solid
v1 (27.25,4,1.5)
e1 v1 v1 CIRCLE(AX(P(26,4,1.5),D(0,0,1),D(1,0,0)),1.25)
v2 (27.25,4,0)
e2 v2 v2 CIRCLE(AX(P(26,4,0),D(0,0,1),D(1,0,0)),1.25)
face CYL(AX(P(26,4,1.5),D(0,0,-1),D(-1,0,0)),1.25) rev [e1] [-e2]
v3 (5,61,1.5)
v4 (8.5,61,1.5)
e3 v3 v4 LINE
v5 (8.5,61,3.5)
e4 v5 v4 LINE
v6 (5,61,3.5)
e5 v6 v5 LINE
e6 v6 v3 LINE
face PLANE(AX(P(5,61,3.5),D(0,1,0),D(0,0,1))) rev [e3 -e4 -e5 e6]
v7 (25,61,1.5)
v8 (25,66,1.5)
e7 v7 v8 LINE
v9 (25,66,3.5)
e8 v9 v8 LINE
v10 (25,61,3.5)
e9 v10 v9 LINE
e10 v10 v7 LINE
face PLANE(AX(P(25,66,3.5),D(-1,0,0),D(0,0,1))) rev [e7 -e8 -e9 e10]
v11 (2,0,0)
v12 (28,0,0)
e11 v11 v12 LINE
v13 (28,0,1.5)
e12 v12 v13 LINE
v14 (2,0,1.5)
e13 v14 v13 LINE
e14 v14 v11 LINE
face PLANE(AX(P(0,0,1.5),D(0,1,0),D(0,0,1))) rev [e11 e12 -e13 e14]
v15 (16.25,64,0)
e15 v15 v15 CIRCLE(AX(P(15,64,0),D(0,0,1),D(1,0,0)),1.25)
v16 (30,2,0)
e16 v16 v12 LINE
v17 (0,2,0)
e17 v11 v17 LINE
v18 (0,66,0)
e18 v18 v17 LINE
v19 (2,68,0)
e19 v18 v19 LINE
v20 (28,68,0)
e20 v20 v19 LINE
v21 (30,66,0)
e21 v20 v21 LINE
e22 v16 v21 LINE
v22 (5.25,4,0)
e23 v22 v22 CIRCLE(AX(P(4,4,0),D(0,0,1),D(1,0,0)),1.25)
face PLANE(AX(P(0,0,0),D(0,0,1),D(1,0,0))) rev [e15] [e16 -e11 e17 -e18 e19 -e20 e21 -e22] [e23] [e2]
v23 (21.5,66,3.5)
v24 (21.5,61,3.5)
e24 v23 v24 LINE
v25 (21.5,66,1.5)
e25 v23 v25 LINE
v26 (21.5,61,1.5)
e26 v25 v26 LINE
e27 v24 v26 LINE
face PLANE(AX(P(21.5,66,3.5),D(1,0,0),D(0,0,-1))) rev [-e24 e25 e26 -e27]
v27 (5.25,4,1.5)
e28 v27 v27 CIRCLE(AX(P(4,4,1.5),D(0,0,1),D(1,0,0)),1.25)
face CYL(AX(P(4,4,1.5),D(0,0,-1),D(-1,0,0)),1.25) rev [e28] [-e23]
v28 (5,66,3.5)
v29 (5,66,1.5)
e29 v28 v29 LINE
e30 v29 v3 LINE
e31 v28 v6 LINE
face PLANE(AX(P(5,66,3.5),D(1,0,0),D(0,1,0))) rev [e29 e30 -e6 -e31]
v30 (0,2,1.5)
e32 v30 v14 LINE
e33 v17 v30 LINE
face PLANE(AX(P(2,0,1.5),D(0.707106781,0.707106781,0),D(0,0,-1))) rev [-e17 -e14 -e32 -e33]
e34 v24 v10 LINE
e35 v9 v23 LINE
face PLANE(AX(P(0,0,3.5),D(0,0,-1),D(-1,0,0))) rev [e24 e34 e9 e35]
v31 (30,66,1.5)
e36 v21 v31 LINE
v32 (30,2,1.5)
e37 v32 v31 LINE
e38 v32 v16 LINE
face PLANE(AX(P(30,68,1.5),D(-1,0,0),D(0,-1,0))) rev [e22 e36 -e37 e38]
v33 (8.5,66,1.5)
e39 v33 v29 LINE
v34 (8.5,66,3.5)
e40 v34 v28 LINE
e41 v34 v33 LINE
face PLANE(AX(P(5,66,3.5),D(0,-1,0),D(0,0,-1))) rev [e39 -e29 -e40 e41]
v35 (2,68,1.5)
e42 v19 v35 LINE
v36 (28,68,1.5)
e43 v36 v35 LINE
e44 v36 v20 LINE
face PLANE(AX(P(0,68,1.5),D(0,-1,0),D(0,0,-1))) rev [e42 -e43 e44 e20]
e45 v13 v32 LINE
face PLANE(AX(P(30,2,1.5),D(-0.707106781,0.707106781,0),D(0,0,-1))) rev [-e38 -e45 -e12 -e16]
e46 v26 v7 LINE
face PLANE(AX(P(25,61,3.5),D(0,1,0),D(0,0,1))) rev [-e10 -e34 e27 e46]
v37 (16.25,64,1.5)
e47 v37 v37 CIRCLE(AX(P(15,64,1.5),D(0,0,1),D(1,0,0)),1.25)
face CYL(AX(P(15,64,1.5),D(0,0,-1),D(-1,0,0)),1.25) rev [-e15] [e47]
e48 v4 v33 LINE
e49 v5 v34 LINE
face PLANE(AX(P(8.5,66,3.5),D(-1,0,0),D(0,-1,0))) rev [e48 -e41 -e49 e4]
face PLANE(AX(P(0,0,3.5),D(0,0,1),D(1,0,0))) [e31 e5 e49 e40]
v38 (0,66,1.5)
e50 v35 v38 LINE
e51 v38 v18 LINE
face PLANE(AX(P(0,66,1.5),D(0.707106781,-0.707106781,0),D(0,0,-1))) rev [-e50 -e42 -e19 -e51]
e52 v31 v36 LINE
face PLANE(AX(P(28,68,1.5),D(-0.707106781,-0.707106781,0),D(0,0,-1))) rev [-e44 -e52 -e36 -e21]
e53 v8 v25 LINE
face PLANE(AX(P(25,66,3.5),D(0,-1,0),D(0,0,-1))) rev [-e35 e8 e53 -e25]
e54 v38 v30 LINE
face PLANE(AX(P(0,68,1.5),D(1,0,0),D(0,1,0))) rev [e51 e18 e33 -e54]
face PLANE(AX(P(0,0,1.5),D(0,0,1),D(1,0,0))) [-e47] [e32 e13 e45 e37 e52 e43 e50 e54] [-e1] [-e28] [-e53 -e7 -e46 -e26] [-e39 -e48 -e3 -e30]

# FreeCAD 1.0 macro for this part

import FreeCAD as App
import Part
import Sketcher
from FreeCAD import Vector


def edges_at(feature, points):
    """Names of the edges that pass closest to the given points."""
    edges = feature.Shape.Edges
    near = lambda p: min(range(len(edges)), key=lambda i: edges[i].distToShape(Part.Vertex(*p))[0])
    return sorted({f"Edge{near(p) + 1}" for p in points})

doc = App.newDocument("Part")
body = doc.addObject("PartDesign::Body", "Body")

# Sketch on XY plane
sketch1 = doc.addObject("Sketcher::SketchObject", "Sketch")
body.addObject(sketch1)
sketch1.AttachmentSupport = (doc.XY_Plane, [""])
sketch1.MapMode = "FlatFace"
sketch1.addGeometry(Part.LineSegment(Vector(0, 68, 0), Vector(0, 0, 0)), False)
sketch1.addGeometry(Part.LineSegment(Vector(0, 0, 0), Vector(30, 0, 0)), False)
sketch1.addGeometry(Part.LineSegment(Vector(30, 0, 0), Vector(30, 68, 0)), False)
sketch1.addGeometry(Part.LineSegment(Vector(30, 68, 0), Vector(0, 68, 0)), False)
sketch1.addGeometry(Part.Circle(Vector(4, 4, 0), Vector(0, 0, 1), 1.25), False)
sketch1.addGeometry(Part.Circle(Vector(26, 4, 0), Vector(0, 0, 1), 1.25), False)
sketch1.addGeometry(Part.Circle(Vector(15, 64, 0), Vector(0, 0, 1), 1.25), False)
sketch1.addConstraint(Sketcher.Constraint("Coincident", 0, 2, 1, 1))
sketch1.addConstraint(Sketcher.Constraint("Coincident", 1, 2, 2, 1))
sketch1.addConstraint(Sketcher.Constraint("Coincident", 2, 2, 3, 1))
sketch1.addConstraint(Sketcher.Constraint("Coincident", 3, 2, 0, 1))
sketch1.addConstraint(Sketcher.Constraint("Vertical", 0))
sketch1.addConstraint(Sketcher.Constraint("Horizontal", 1))
sketch1.addConstraint(Sketcher.Constraint("Vertical", 2))
sketch1.addConstraint(Sketcher.Constraint("Horizontal", 3))
sketch1.addConstraint(Sketcher.Constraint("Coincident", 0, 2, -1, 1))
sketch1.addConstraint(Sketcher.Constraint("Equal", 4, 5))
sketch1.addConstraint(Sketcher.Constraint("Equal", 5, 6))
sketch1.addConstraint(Sketcher.Constraint("Horizontal", 4, 3, 5, 3))
sketch1.addConstraint(Sketcher.Constraint("Diameter", 4, 2.5))
sketch1.addConstraint(Sketcher.Constraint("DistanceX", 1, 1, 1, 2, 30.0))
sketch1.addConstraint(Sketcher.Constraint("DistanceY", 0, 2, 0, 1, 68.0))
sketch1.addConstraint(Sketcher.Constraint("DistanceX", -1, 1, 4, 3, 4.0))
sketch1.addConstraint(Sketcher.Constraint("DistanceY", -1, 1, 4, 3, 4.0))
sketch1.addConstraint(Sketcher.Constraint("DistanceX", -1, 1, 5, 3, 26.0))
sketch1.addConstraint(Sketcher.Constraint("DistanceX", -1, 1, 6, 3, 15.0))
sketch1.addConstraint(Sketcher.Constraint("DistanceY", -1, 1, 6, 3, 64.0))
pad1 = doc.addObject("PartDesign::Pad", "Pad")
body.addObject(pad1)
pad1.Profile = sketch1
pad1.Length = 1.5
doc.recompute()

chamfer = doc.addObject("PartDesign::Chamfer", "Chamfer")
body.addObject(chamfer)
chamfer.Base = (pad1, edges_at(pad1, [
    (0, 68, 0.75),
    (30, 68, 0.75),
    (30, 0, 0.75),
    (0, 0, 0.75),
]))
chamfer.Size = 2

# Sketch on XY plane
sketch2 = doc.addObject("Sketcher::SketchObject", "Sketch001")
body.addObject(sketch2)
sketch2.AttachmentSupport = (doc.XY_Plane, [""])
sketch2.MapMode = "FlatFace"
sketch2.AttachmentOffset = App.Placement(Vector(0, 0, 1.5), App.Rotation())
sketch2.addGeometry(Part.LineSegment(Vector(5, 66, 0), Vector(5, 61, 0)), False)
sketch2.addGeometry(Part.LineSegment(Vector(5, 61, 0), Vector(8.5, 61, 0)), False)
sketch2.addGeometry(Part.LineSegment(Vector(8.5, 61, 0), Vector(8.5, 66, 0)), False)
sketch2.addGeometry(Part.LineSegment(Vector(8.5, 66, 0), Vector(5, 66, 0)), False)
sketch2.addGeometry(Part.LineSegment(Vector(21.5, 66, 0), Vector(21.5, 61, 0)), False)
sketch2.addGeometry(Part.LineSegment(Vector(21.5, 61, 0), Vector(25, 61, 0)), False)
sketch2.addGeometry(Part.LineSegment(Vector(25, 61, 0), Vector(25, 66, 0)), False)
sketch2.addGeometry(Part.LineSegment(Vector(25, 66, 0), Vector(21.5, 66, 0)), False)
sketch2.addConstraint(Sketcher.Constraint("Coincident", 0, 2, 1, 1))
sketch2.addConstraint(Sketcher.Constraint("Coincident", 1, 2, 2, 1))
sketch2.addConstraint(Sketcher.Constraint("Coincident", 2, 2, 3, 1))
sketch2.addConstraint(Sketcher.Constraint("Coincident", 3, 2, 0, 1))
sketch2.addConstraint(Sketcher.Constraint("Coincident", 4, 2, 5, 1))
sketch2.addConstraint(Sketcher.Constraint("Coincident", 5, 2, 6, 1))
sketch2.addConstraint(Sketcher.Constraint("Coincident", 6, 2, 7, 1))
sketch2.addConstraint(Sketcher.Constraint("Coincident", 7, 2, 4, 1))
sketch2.addConstraint(Sketcher.Constraint("Vertical", 0))
sketch2.addConstraint(Sketcher.Constraint("Horizontal", 1))
sketch2.addConstraint(Sketcher.Constraint("Vertical", 2))
sketch2.addConstraint(Sketcher.Constraint("Horizontal", 3))
sketch2.addConstraint(Sketcher.Constraint("Vertical", 4))
sketch2.addConstraint(Sketcher.Constraint("Horizontal", 5))
sketch2.addConstraint(Sketcher.Constraint("Vertical", 6))
sketch2.addConstraint(Sketcher.Constraint("Horizontal", 7))
sketch2.addConstraint(Sketcher.Constraint("Horizontal", 1, 2, 4, 2))
sketch2.addConstraint(Sketcher.Constraint("Horizontal", 3, 2, 6, 2))
sketch2.addConstraint(Sketcher.Constraint("Equal", 3, 5))
sketch2.addConstraint(Sketcher.Constraint("DistanceY", 0, 2, 0, 1, 5.0))
sketch2.addConstraint(Sketcher.Constraint("DistanceX", 1, 1, 1, 2, 3.5))
sketch2.addConstraint(Sketcher.Constraint("DistanceX", -1, 1, 0, 2, 5.0))
sketch2.addConstraint(Sketcher.Constraint("DistanceY", -1, 1, 0, 2, 61.0))
sketch2.addConstraint(Sketcher.Constraint("DistanceX", -1, 1, 5, 2, 25.0))
pad2 = doc.addObject("PartDesign::Pad", "Pad001")
body.addObject(pad2)
pad2.Profile = sketch2
pad2.Length = 2

doc.recompute()
